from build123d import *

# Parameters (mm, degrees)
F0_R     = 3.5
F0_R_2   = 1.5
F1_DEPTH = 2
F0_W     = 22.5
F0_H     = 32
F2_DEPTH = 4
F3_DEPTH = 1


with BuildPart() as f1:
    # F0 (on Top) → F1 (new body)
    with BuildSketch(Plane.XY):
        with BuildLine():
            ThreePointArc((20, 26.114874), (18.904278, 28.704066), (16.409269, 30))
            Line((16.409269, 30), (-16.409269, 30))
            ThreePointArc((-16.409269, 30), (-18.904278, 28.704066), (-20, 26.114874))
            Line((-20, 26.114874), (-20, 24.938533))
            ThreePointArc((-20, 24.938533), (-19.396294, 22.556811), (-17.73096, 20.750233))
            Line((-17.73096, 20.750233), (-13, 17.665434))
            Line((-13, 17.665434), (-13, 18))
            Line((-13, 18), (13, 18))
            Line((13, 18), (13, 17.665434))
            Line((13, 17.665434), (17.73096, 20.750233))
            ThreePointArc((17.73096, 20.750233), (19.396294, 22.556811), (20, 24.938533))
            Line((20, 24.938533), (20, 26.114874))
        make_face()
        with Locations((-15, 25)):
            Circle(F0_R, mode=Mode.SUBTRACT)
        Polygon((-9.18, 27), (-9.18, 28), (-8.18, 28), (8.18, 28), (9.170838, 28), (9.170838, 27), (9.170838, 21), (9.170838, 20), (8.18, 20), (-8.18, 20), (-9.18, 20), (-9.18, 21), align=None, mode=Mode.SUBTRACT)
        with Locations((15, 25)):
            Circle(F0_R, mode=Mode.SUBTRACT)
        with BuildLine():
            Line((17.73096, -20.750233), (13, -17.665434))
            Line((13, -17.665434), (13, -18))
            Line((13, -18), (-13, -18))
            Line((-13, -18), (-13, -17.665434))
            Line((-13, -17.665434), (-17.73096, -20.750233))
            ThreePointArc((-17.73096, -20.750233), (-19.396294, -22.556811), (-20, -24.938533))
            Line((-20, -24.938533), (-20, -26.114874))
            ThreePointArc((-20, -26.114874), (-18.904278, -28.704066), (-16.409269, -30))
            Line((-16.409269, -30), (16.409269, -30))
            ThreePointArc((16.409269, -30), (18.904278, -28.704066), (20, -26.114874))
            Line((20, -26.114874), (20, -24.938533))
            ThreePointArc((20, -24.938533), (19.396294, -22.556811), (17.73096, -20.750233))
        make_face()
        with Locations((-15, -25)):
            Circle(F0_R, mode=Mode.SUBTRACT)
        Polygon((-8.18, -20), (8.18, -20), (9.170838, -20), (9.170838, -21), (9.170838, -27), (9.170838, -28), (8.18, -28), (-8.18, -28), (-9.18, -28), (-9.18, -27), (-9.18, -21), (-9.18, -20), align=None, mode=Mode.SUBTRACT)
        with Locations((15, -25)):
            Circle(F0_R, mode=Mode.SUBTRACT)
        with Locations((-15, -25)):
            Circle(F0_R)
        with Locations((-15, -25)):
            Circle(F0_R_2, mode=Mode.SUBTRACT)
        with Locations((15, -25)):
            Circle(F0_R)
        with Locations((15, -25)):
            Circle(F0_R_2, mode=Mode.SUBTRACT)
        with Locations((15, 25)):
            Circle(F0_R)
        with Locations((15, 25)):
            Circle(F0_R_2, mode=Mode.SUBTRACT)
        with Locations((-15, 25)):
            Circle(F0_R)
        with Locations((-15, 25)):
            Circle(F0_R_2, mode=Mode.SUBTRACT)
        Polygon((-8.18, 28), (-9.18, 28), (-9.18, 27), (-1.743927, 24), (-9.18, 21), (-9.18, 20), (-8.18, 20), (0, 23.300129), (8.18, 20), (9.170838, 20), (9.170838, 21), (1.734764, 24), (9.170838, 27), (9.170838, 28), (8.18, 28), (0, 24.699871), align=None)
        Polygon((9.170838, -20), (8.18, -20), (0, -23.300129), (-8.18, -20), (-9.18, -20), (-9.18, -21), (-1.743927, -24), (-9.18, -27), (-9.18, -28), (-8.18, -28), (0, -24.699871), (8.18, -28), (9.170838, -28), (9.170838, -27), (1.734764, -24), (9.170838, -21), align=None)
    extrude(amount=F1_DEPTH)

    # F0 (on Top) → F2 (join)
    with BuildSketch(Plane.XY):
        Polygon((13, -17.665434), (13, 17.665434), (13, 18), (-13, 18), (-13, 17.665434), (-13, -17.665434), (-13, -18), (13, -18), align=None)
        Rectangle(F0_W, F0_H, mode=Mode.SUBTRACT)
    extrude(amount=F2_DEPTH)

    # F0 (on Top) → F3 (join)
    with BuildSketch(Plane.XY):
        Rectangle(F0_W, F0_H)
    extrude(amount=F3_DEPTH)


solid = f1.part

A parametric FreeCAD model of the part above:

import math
import FreeCAD as App
import Part
import Sketcher
Q = App.Units.Quantity


def add_polygon(sketch, points):
    """Adds a closed chain of lines whose ends are joined by coincident constraints."""
    first, n = sketch.GeometryCount, len(points)
    for a, b in zip(points, points[1:] + points[:1]):
        sketch.addGeometry(Part.LineSegment(App.Vector(*a, 0), App.Vector(*b, 0)), False)
    for i in range(n):
        sketch.addConstraint(Sketcher.Constraint("Coincident", first + i, 2, first + (i + 1) % n, 1))

doc = App.newDocument("Part")
params = doc.addObject("Spreadsheet::Sheet", "Params")
for row, (alias, value) in enumerate([
    ("sketch1_diameter", "3 mm"),
    ("sketch1_radius", "4.999999 mm"),
    ("sketch1_width", "26 mm"),
    ("sketch1_height", "6 mm"),
    ("sketch1_width2", "16.36 mm"),
    ("pad1_length", "2 mm"),
    ("sketch2_width", "26 mm"),
    ("sketch2_height", "36 mm"),
    ("sketch2_height2", "32 mm"),
    ("sketch2_width2", "22.5 mm"),
    ("pad2_length", "4 mm"),
    ("sketch3_height", "32 mm"),
    ("sketch3_width", "22.5 mm"),
    ("pad3_length", "1 mm"),
], start=1):
    params.set(f"A{row}", alias)
    params.set(f"B{row}", "=" + value)
    params.setAlias(f"B{row}", alias)

body = doc.addObject("PartDesign::Body", "Body")
body.AllowCompound = True

# Sketch on XY plane
sketch1 = body.newObject("Sketcher::SketchObject", "Sketch")
sketch1.AttachmentSupport = (doc.getObject("XY_Plane"), [""])
sketch1.MapMode = "FlatFace"
sketch1.addGeometry(Part.ArcOfCircle(Part.Circle(App.Vector(15.86, 25.89, 0), App.Vector(0, 0, 1), 4.15), math.radians(3), math.radians(82)), False)  # 0
sketch1.addGeometry(Part.LineSegment(App.Vector(16.41, 30, 0), App.Vector(-16.41, 30, 0)), False)  # 1
sketch1.addGeometry(Part.ArcOfCircle(Part.Circle(App.Vector(-15.86, 25.89, 0), App.Vector(0, 0, 1), 4.15), math.radians(98), math.radians(177)), False)  # 2
sketch1.addGeometry(Part.LineSegment(App.Vector(-20, 26.11, 0), App.Vector(-20, 24.94, 0)), False)  # 3
sketch1.addGeometry(Part.ArcOfCircle(Part.Circle(App.Vector(-15, 24.94, 0), App.Vector(0, 0, 1), 5), math.radians(180), math.radians(237)), False)  # 4
sketch1.addGeometry(Part.LineSegment(App.Vector(-17.73, 20.75, 0), App.Vector(-13, 17.67, 0)), False)  # 5
sketch1.addGeometry(Part.LineSegment(App.Vector(-13, 17.67, 0), App.Vector(-13, 18, 0)), False)  # 6
sketch1.addGeometry(Part.LineSegment(App.Vector(-13, 18, 0), App.Vector(13, 18, 0)), False)  # 7
sketch1.addGeometry(Part.LineSegment(App.Vector(13, 18, 0), App.Vector(13, 17.67, 0)), False)  # 8
sketch1.addGeometry(Part.LineSegment(App.Vector(13, 17.67, 0), App.Vector(17.73, 20.75, 0)), False)  # 9
sketch1.addGeometry(Part.ArcOfCircle(Part.Circle(App.Vector(15, 24.94, 0), App.Vector(0, 0, 1), 5), math.radians(-57), math.radians(0)), False)  # 10
sketch1.addGeometry(Part.LineSegment(App.Vector(20, 24.94, 0), App.Vector(20, 26.11, 0)), False)  # 11
sketch1.addGeometry(Part.Circle(App.Vector(-15, 25, 0), App.Vector(0, 0, 1), 1.5), False)  # 12
add_polygon(sketch1, [(-9.18, 21), (-9.18, 27), (-1.74, 24)])  # lines 13-15
add_polygon(sketch1, [(8.18, 20), (-8.18, 20), (0, 23.3)])  # lines 16-18
add_polygon(sketch1, [(-8.18, 28), (8.18, 28), (0, 24.7)])  # lines 19-21
add_polygon(sketch1, [(9.17, 27), (9.17, 21), (1.73, 24)])  # lines 22-24
sketch1.addGeometry(Part.Circle(App.Vector(15, 25, 0), App.Vector(0, 0, 1), 1.5), False)  # 25
sketch1.addGeometry(Part.LineSegment(App.Vector(17.73, -20.75, 0), App.Vector(13, -17.67, 0)), False)  # 26
sketch1.addGeometry(Part.LineSegment(App.Vector(13, -17.67, 0), App.Vector(13, -18, 0)), False)  # 27
sketch1.addGeometry(Part.LineSegment(App.Vector(13, -18, 0), App.Vector(-13, -18, 0)), False)  # 28
sketch1.addGeometry(Part.LineSegment(App.Vector(-13, -18, 0), App.Vector(-13, -17.67, 0)), False)  # 29
sketch1.addGeometry(Part.LineSegment(App.Vector(-13, -17.67, 0), App.Vector(-17.73, -20.75, 0)), False)  # 30
sketch1.addGeometry(Part.ArcOfCircle(Part.Circle(App.Vector(-15, -24.94, 0), App.Vector(0, 0, 1), 5), math.radians(123), math.radians(180)), False)  # 31
sketch1.addGeometry(Part.LineSegment(App.Vector(-20, -24.94, 0), App.Vector(-20, -26.11, 0)), False)  # 32
sketch1.addGeometry(Part.ArcOfCircle(Part.Circle(App.Vector(-15.86, -25.89, 0), App.Vector(0, 0, 1), 4.15), math.radians(-177), math.radians(-98)), False)  # 33
sketch1.addGeometry(Part.LineSegment(App.Vector(-16.41, -30, 0), App.Vector(16.41, -30, 0)), False)  # 34
sketch1.addGeometry(Part.ArcOfCircle(Part.Circle(App.Vector(15.86, -25.89, 0), App.Vector(0, 0, 1), 4.15), math.radians(-82), math.radians(-3)), False)  # 35
sketch1.addGeometry(Part.LineSegment(App.Vector(20, -26.11, 0), App.Vector(20, -24.94, 0)), False)  # 36
sketch1.addGeometry(Part.ArcOfCircle(Part.Circle(App.Vector(15, -24.94, 0), App.Vector(0, 0, 1), 5), math.radians(0), math.radians(57)), False)  # 37
sketch1.addGeometry(Part.Circle(App.Vector(-15, -25, 0), App.Vector(0, 0, 1), 1.5), False)  # 38
sketch1.addGeometry(Part.Circle(App.Vector(15, -25, 0), App.Vector(0, 0, 1), 1.5), False)  # 39
add_polygon(sketch1, [(-8.18, -20), (8.18, -20), (0, -23.3)])  # lines 40-42
add_polygon(sketch1, [(-9.18, -27), (-9.18, -21), (-1.74, -24)])  # lines 43-45
add_polygon(sketch1, [(9.17, -21), (9.17, -27), (1.73, -24)])  # lines 46-48
add_polygon(sketch1, [(8.18, -28), (-8.18, -28), (0, -24.7)])  # lines 49-51
sketch1.addConstraint([
    Sketcher.Constraint("Coincident", 0, 2, 1, 1),
    Sketcher.Constraint("Coincident", 1, 2, 2, 1),
    Sketcher.Constraint("Coincident", 2, 2, 3, 1),
    Sketcher.Constraint("Tangent", 3, 2, 4, 1),
    Sketcher.Constraint("Tangent", 4, 2, 5, 1),
    Sketcher.Constraint("Coincident", 5, 2, 6, 1),
    Sketcher.Constraint("Coincident", 6, 2, 7, 1),
    Sketcher.Constraint("Coincident", 7, 2, 8, 1),
    Sketcher.Constraint("Coincident", 8, 2, 9, 1),
    Sketcher.Constraint("Tangent", 9, 2, 10, 1),
    Sketcher.Constraint("Tangent", 10, 2, 11, 1),
    Sketcher.Constraint("Coincident", 11, 2, 0, 1),
    Sketcher.Constraint("Coincident", 26, 2, 27, 1),
    Sketcher.Constraint("Coincident", 27, 2, 28, 1),
    Sketcher.Constraint("Coincident", 28, 2, 29, 1),
    Sketcher.Constraint("Coincident", 29, 2, 30, 1),
    Sketcher.Constraint("Tangent", 30, 2, 31, 1),
    Sketcher.Constraint("Tangent", 31, 2, 32, 1),
    Sketcher.Constraint("Coincident", 32, 2, 33, 1),
    Sketcher.Constraint("Coincident", 33, 2, 34, 1),
    Sketcher.Constraint("Coincident", 34, 2, 35, 1),
    Sketcher.Constraint("Coincident", 35, 2, 36, 1),
    Sketcher.Constraint("Tangent", 36, 2, 37, 1),
    Sketcher.Constraint("Tangent", 37, 2, 26, 1),
    Sketcher.Constraint("Horizontal", 1),
    Sketcher.Constraint("Vertical", 3),
    Sketcher.Constraint("Vertical", 6),
    Sketcher.Constraint("Horizontal", 7),
    Sketcher.Constraint("Vertical", 8),
    Sketcher.Constraint("Vertical", 11),
    Sketcher.Constraint("Vertical", 13),
    Sketcher.Constraint("Horizontal", 16),
    Sketcher.Constraint("Horizontal", 19),
    Sketcher.Constraint("Vertical", 22),
    Sketcher.Constraint("Vertical", 27),
    Sketcher.Constraint("Horizontal", 28),
    Sketcher.Constraint("Vertical", 29),
    Sketcher.Constraint("Vertical", 32),
    Sketcher.Constraint("Horizontal", 34),
    Sketcher.Constraint("Vertical", 36),
    Sketcher.Constraint("Horizontal", 40),
    Sketcher.Constraint("Vertical", 43),
    Sketcher.Constraint("Vertical", 46),
    Sketcher.Constraint("Horizontal", 49),
    Sketcher.Constraint("Equal", 0, 2),
    Sketcher.Constraint("Equal", 4, 10),
    Sketcher.Constraint("Equal", 12, 25),
    Sketcher.Constraint("Equal", 10, 31),
    Sketcher.Constraint("Equal", 2, 33),
    Sketcher.Constraint("Equal", 33, 35),
    Sketcher.Constraint("Equal", 31, 37),
    Sketcher.Constraint("Equal", 25, 38),
    Sketcher.Constraint("Equal", 38, 39),
    Sketcher.Constraint("Symmetric", 10, 3, 31, 3, -1, 1),
    Sketcher.Constraint("Symmetric", 0, 3, 33, 3, -1, 1),
    Sketcher.Constraint("Symmetric", 2, 3, 35, 3, -1, 1),
    Sketcher.Constraint("Symmetric", 4, 3, 37, 3, -1, 1),
    Sketcher.Constraint("Symmetric", 25, 3, 38, 3, -1, 1),
    Sketcher.Constraint("Symmetric", 12, 3, 39, 3, -1, 1),
    Sketcher.Constraint("Symmetric", 5, 2, 26, 2, -1, 1),
    Sketcher.Constraint("Symmetric", 7, 2, 28, 2, -1, 1),
    Sketcher.Constraint("Symmetric", 16, 2, 40, 2, -1, 1),
    Sketcher.Constraint("Symmetric", 17, 2, 41, 2, -1, 1),
    Sketcher.Constraint("Symmetric", 19, 2, 49, 2, -1, 1),
    Sketcher.Constraint("Symmetric", 20, 2, 50, 2, -1, 1),
    Sketcher.Constraint("Symmetric", 0, 3, 2, 3, -2),
    Sketcher.Constraint("Symmetric", 4, 3, 10, 3, -2),
    Sketcher.Constraint("Symmetric", 12, 3, 25, 3, -2),
    Sketcher.Constraint("Symmetric", 5, 2, 8, 2, -2),
    Sketcher.Constraint("Symmetric", 15, 2, 43, 2, -1),
    Sketcher.Constraint("Symmetric", 14, 2, 44, 2, -1),
    Sketcher.Constraint("Symmetric", 24, 2, 46, 2, -1),
    Sketcher.Constraint("Symmetric", 23, 2, 47, 2, -1),
    Sketcher.Constraint("PointOnObject", 17, 2, -2),
    Sketcher.Constraint("PointOnObject", 20, 2, -2),
    Sketcher.Constraint("Parallel", 15, 17),
    Sketcher.Constraint("Parallel", 14, 18),
    Sketcher.Constraint("Parallel", 17, 20),
    Sketcher.Constraint("Parallel", 18, 21),
    Sketcher.Constraint("Parallel", 21, 23),
    Sketcher.Constraint("Parallel", 20, 24),
    Sketcher.Constraint("Parallel", 9, 30),
    Sketcher.Constraint("Parallel", 23, 42),
    Sketcher.Constraint("Parallel", 42, 44),
    Sketcher.Constraint("Parallel", 41, 45),
    Sketcher.Constraint("Parallel", 45, 48),
    Sketcher.Constraint("Parallel", 47, 51),
    Sketcher.Constraint("Horizontal", 15, 2, 22, 2),
    Sketcher.Constraint("Horizontal", 14, 2, 23, 2),
    Sketcher.Constraint("Vertical", 4, 3, 12, 3),
    Sketcher.Constraint("Vertical", 18, 2, 19, 2),
    Sketcher.Constraint("Vertical", 1, 2, 33, 2),
    Sketcher.Constraint("Diameter", 12, Q("3 mm")),
    Sketcher.Constraint("Radius", 4, Q("4.999999 mm")),
    Sketcher.Constraint("DistanceX", 7, 1, 7, 2, Q("26 mm")),
    Sketcher.Constraint("DistanceY", 13, 1, 13, 2, Q("6 mm")),
    Sketcher.Constraint("DistanceX", 4, 3, -1, 1, Q("15.000001 mm")),
    Sketcher.Constraint("DistanceY", -1, 1, 12, 3, Q("25 mm")),
    Sketcher.Constraint("DistanceY", -1, 1, 0, 2, Q("30 mm")),
    Sketcher.Constraint("DistanceY", -1, 1, 6, 2, Q("18 mm")),
    Sketcher.Constraint("DistanceY", -1, 1, 13, 2, Q("27 mm")),
    Sketcher.Constraint("DistanceY", -1, 1, 16, 2, Q("20 mm")),
    Sketcher.Constraint("DistanceY", -1, 1, 19, 2, Q("28 mm")),
    Sketcher.Constraint("DistanceX", 15, 2, 16, 2, Q("1 mm")),
    Sketcher.Constraint("DistanceX", 16, 2, 16, 1, Q("16.36 mm")),
    Sketcher.Constraint("Radius", 0, Q("4.148499 mm")),
    Sketcher.Constraint("DistanceY", 3, 2, 3, 1, Q("1.176341 mm")),
    Sketcher.Constraint("DistanceY", 4, 3, 2, 3, Q("0.9498 mm")),
    Sketcher.Constraint("DistanceY", 4, 2, 3, 2, Q("4.1883 mm")),
    Sketcher.Constraint("Distance", 23, Q("8.018429 mm")),
    Sketcher.Constraint("DistanceX", 1, 2, 1, 1, Q("32.818538 mm")),
    Sketcher.Constraint("DistanceX", 18, 2, 22, 2, Q("0.990838 mm")),
])
sketch1.setExpression("Constraints[116]", "Params.sketch1_diameter")
sketch1.setExpression("Constraints[117]", "Params.sketch1_radius")
sketch1.setExpression("Constraints[118]", "Params.sketch1_width")
sketch1.setExpression("Constraints[119]", "Params.sketch1_height")
sketch1.setExpression("Constraints[128]", "Params.sketch1_width2")
pad1 = body.newObject("PartDesign::Pad", "Pad")
pad1.Profile = sketch1
pad1.setExpression("Length", "Params.pad1_length")

# Sketch on XY plane
sketch2 = body.newObject("Sketcher::SketchObject", "Sketch001")
sketch2.AttachmentSupport = (doc.getObject("XY_Plane"), [""])
sketch2.MapMode = "FlatFace"
add_polygon(sketch2, [(13, 18), (-13, 18), (-13, -18), (13, -18)])  # lines 0-3
add_polygon(sketch2, [(11, -16), (-11, -16), (-11, 16), (11, 16)])  # lines 4-7
sketch2.addConstraint([
    Sketcher.Constraint("Horizontal", 0),
    Sketcher.Constraint("Vertical", 1),
    Sketcher.Constraint("Horizontal", 2),
    Sketcher.Constraint("Vertical", 3),
    Sketcher.Constraint("Horizontal", 4),
    Sketcher.Constraint("Vertical", 5),
    Sketcher.Constraint("Horizontal", 6),
    Sketcher.Constraint("Vertical", 7),
    Sketcher.Constraint("Symmetric", 0, 2, 2, 2, -1, 1),
    Sketcher.Constraint("Symmetric", 4, 2, 6, 2, -1, 1),
    Sketcher.Constraint("DistanceX", 0, 2, 0, 1, Q("26 mm")),
    Sketcher.Constraint("DistanceY", 1, 2, 1, 1, Q("36 mm")),
    Sketcher.Constraint("DistanceY", 5, 1, 5, 2, Q("32 mm")),
    Sketcher.Constraint("DistanceX", 4, 2, 4, 1, Q("22.5 mm")),
])
sketch2.setExpression("Constraints[18]", "Params.sketch2_width")
sketch2.setExpression("Constraints[19]", "Params.sketch2_height")
sketch2.setExpression("Constraints[20]", "Params.sketch2_height2")
sketch2.setExpression("Constraints[21]", "Params.sketch2_width2")
pad2 = body.newObject("PartDesign::Pad", "Pad001")
pad2.Profile = sketch2
pad2.setExpression("Length", "Params.pad2_length")

# Sketch on XY plane
sketch3 = body.newObject("Sketcher::SketchObject", "Sketch002")
sketch3.AttachmentSupport = (doc.getObject("XY_Plane"), [""])
sketch3.MapMode = "FlatFace"
add_polygon(sketch3, [(-11, 16), (-11, -16), (11, -16), (11, 16)])  # lines 0-3
sketch3.addConstraint([
    Sketcher.Constraint("Vertical", 0),
    Sketcher.Constraint("Horizontal", 1),
    Sketcher.Constraint("Vertical", 2),
    Sketcher.Constraint("Horizontal", 3),
    Sketcher.Constraint("Symmetric", 0, 2, 2, 2, -1, 1),
    Sketcher.Constraint("DistanceY", 0, 2, 0, 1, Q("32 mm")),
    Sketcher.Constraint("DistanceX", 1, 1, 1, 2, Q("22.5 mm")),
])
sketch3.setExpression("Constraints[9]", "Params.sketch3_height")
sketch3.setExpression("Constraints[10]", "Params.sketch3_width")
pad3 = body.newObject("PartDesign::Pad", "Pad002")
pad3.Profile = sketch3
pad3.setExpression("Length", "Params.pad3_length")

doc.recompute()
